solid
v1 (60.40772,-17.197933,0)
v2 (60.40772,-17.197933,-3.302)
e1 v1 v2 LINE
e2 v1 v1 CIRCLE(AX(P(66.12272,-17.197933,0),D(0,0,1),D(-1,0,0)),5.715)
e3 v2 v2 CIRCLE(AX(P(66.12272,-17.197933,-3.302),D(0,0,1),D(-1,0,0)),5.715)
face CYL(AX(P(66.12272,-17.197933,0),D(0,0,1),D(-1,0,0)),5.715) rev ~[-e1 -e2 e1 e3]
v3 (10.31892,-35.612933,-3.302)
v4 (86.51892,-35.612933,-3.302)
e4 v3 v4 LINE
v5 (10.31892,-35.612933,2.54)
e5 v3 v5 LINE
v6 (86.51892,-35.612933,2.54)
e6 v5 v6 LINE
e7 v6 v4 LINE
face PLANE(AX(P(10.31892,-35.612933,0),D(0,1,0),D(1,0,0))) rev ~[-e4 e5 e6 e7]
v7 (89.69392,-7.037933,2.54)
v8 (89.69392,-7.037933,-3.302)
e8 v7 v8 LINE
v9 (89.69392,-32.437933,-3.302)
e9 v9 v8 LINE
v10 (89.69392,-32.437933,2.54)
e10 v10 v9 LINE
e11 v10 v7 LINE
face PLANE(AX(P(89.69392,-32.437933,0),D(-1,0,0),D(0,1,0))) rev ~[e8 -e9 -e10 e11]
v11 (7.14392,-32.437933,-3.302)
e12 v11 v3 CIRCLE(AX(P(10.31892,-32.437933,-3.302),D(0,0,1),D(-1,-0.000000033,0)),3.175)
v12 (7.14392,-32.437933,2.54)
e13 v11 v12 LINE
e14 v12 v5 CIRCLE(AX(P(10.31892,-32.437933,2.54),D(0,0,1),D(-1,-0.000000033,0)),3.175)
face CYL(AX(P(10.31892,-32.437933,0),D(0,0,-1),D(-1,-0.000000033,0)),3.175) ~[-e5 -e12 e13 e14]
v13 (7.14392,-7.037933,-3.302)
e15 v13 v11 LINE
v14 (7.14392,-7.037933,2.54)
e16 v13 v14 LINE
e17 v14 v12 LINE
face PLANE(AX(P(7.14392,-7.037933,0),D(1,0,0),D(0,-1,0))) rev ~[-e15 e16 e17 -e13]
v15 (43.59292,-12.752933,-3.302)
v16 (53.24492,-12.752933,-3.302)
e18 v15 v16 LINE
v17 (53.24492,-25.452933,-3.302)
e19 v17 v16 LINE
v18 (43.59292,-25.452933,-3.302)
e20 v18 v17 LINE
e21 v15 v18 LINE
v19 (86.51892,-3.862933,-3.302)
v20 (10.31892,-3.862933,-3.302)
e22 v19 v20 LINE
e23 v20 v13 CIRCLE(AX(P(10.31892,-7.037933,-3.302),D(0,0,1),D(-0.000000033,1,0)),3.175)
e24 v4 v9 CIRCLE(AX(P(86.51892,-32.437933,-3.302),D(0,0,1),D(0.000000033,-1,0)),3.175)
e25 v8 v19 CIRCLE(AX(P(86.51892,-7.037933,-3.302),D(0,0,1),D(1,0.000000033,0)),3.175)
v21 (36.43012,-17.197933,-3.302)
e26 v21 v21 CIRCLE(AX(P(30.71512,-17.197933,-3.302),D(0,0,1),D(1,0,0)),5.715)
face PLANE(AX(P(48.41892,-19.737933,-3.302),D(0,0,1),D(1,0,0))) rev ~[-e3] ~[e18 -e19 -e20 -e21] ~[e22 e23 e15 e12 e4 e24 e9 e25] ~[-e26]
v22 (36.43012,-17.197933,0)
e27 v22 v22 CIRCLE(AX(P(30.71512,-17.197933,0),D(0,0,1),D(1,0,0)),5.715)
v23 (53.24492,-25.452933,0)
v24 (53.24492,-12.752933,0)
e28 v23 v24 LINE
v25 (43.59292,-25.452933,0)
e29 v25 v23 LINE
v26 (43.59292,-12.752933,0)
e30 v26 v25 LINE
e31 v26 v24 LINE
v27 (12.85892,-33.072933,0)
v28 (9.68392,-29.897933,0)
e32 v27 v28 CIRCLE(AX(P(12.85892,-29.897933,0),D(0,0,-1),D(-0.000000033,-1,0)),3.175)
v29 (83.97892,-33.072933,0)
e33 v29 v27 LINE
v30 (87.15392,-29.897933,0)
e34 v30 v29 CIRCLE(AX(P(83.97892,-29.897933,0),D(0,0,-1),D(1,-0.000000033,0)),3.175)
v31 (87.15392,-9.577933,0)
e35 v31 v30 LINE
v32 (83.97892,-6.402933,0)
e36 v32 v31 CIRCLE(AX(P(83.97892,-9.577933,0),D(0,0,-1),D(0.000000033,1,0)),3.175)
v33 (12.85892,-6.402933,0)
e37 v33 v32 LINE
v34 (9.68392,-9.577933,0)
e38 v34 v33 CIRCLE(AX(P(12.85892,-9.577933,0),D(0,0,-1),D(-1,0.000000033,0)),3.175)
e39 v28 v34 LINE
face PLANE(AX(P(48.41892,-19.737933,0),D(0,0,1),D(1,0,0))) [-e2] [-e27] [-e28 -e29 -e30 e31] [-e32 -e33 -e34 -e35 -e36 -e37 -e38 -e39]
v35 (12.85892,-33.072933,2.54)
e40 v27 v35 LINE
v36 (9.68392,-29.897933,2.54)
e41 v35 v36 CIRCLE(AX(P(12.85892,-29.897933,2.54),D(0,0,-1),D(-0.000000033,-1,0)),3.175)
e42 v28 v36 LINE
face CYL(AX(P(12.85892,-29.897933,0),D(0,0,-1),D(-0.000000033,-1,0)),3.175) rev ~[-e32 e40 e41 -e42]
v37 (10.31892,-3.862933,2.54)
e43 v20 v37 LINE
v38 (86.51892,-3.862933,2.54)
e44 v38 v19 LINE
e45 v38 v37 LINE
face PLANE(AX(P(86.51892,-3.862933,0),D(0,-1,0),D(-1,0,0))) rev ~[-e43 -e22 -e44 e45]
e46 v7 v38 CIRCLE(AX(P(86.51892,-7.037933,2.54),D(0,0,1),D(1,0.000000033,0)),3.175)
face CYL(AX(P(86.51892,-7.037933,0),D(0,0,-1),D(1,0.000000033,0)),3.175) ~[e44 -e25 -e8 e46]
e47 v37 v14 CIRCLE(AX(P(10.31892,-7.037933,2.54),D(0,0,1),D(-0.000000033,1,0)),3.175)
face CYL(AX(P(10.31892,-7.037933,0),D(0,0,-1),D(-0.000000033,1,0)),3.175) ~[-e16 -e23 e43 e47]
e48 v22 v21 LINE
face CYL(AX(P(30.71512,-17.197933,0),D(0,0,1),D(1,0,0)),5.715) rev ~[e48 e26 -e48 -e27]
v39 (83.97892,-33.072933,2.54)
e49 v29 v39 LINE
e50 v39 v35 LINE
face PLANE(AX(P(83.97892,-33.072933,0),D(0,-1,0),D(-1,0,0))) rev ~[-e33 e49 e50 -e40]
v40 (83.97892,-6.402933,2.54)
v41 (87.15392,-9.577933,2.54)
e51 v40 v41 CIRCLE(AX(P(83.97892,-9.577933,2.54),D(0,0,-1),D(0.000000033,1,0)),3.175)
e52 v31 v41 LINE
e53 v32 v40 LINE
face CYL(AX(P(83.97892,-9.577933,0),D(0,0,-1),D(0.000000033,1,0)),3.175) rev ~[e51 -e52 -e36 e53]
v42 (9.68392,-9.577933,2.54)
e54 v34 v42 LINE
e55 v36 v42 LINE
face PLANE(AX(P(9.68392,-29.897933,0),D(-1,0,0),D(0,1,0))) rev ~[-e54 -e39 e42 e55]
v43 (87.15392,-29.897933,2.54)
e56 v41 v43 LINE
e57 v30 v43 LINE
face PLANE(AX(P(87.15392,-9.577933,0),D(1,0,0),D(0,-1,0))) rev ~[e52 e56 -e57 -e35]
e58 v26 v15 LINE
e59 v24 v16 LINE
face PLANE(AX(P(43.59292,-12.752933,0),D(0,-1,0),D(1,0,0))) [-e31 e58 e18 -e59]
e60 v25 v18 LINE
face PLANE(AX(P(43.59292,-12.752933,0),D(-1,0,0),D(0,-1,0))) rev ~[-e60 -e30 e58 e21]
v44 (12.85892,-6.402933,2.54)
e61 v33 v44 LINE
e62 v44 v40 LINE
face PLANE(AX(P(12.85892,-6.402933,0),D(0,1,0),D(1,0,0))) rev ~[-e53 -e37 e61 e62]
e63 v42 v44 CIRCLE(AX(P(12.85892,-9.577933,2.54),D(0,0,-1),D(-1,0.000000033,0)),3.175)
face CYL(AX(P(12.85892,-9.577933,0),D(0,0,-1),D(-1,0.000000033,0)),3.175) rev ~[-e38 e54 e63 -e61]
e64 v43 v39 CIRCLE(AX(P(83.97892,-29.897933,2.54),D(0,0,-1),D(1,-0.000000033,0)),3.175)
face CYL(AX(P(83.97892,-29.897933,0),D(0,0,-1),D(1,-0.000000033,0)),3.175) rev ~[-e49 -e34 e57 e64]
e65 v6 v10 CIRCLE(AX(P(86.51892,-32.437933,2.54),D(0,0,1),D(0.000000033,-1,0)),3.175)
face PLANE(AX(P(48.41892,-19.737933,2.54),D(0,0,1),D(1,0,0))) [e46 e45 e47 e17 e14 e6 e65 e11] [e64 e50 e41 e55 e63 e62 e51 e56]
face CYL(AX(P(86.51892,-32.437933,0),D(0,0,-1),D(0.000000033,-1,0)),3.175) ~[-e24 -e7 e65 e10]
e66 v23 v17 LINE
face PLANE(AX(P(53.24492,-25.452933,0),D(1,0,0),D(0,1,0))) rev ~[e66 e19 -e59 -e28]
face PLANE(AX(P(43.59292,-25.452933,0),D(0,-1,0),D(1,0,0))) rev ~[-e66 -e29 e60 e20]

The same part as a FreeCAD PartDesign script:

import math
import FreeCAD as App
import Part
import Sketcher
from FreeCAD import Vector
Q = App.Units.Quantity


def add_polygon(sketch, points):
    """Adds a closed chain of lines whose ends are joined by coincident constraints."""
    first, n = sketch.GeometryCount, len(points)
    for a, b in zip(points, points[1:] + points[:1]):
        sketch.addGeometry(Part.LineSegment(App.Vector(*a, 0), App.Vector(*b, 0)), False)
    for i in range(n):
        sketch.addConstraint(Sketcher.Constraint("Coincident", first + i, 2, first + (i + 1) % n, 1))

doc = App.newDocument("Part")
body = doc.addObject("PartDesign::Body", "Body")

sketch1 = body.newObject("Sketcher::SketchObject", "Sketch")
sketch1.AttachmentSupport = (doc.getObject("XY_Plane"), [""])
sketch1.MapMode = "FlatFace"
sketch1.addGeometry(Part.LineSegment(Vector(86.51892, -3.862933, 0), Vector(10.31892, -3.862933, 0)), False)
sketch1.addGeometry(Part.ArcOfCircle(Part.Circle(Vector(10.31892, -7.037933, 0), Vector(0, 0, 1), 3.175), math.radians(90.000002), math.radians(179.999998)), False)
sketch1.addGeometry(Part.LineSegment(Vector(7.14392, -7.037933, 0), Vector(7.14392, -32.437933, 0)), False)
sketch1.addGeometry(Part.ArcOfCircle(Part.Circle(Vector(10.31892, -32.437933, 0), Vector(0, 0, 1), 3.175), math.radians(-179.999998), math.radians(-90.000002)), False)
sketch1.addGeometry(Part.LineSegment(Vector(10.31892, -35.612933, 0), Vector(86.51892, -35.612933, 0)), False)
sketch1.addGeometry(Part.ArcOfCircle(Part.Circle(Vector(86.51892, -32.437933, 0), Vector(0, 0, 1), 3.175), math.radians(-89.999998), math.radians(-0.000002)), False)
sketch1.addGeometry(Part.LineSegment(Vector(89.69392, -32.437933, 0), Vector(89.69392, -7.037933, 0)), False)
sketch1.addGeometry(Part.ArcOfCircle(Part.Circle(Vector(86.51892, -7.037933, 0), Vector(0, 0, 1), 3.175), math.radians(0.000002), math.radians(89.999998)), False)
sketch1.addConstraint(Sketcher.Constraint("Tangent", 0, 2, 1, 1))
sketch1.addConstraint(Sketcher.Constraint("Tangent", 1, 2, 2, 1))
sketch1.addConstraint(Sketcher.Constraint("Tangent", 2, 2, 3, 1))
sketch1.addConstraint(Sketcher.Constraint("Tangent", 3, 2, 4, 1))
sketch1.addConstraint(Sketcher.Constraint("Tangent", 4, 2, 5, 1))
sketch1.addConstraint(Sketcher.Constraint("Tangent", 5, 2, 6, 1))
sketch1.addConstraint(Sketcher.Constraint("Tangent", 6, 2, 7, 1))
sketch1.addConstraint(Sketcher.Constraint("Tangent", 7, 2, 0, 1))
sketch1.addConstraint(Sketcher.Constraint("Horizontal", 0))
sketch1.addConstraint(Sketcher.Constraint("Vertical", 2))
sketch1.addConstraint(Sketcher.Constraint("Horizontal", 4))
sketch1.addConstraint(Sketcher.Constraint("Vertical", 6))
sketch1.addConstraint(Sketcher.Constraint("Equal", 1, 3))
sketch1.addConstraint(Sketcher.Constraint("Equal", 3, 5))
sketch1.addConstraint(Sketcher.Constraint("Equal", 5, 7))
sketch1.addConstraint(Sketcher.Constraint("DistanceX", 0, 2, 0, 1, Q("3 in")))
sketch1.addConstraint(Sketcher.Constraint("DistanceY", 2, 2, 2, 1, Q("1 in")))
sketch1.addConstraint(Sketcher.Constraint("Radius", 1, Q("0.125 in")))
sketch1.addConstraint(Sketcher.Constraint("DistanceX", -1, 1, 1, 3, 10.31892))
sketch1.addConstraint(Sketcher.Constraint("DistanceY", 1, 3, -1, 1, 7.037933))
pad1 = body.newObject("PartDesign::Pad", "Pad")
pad1.Profile = sketch1
pad1.Length = Q("0.13 in")
pad1.Reversed = True

sketch2 = body.newObject("Sketcher::SketchObject", "Sketch001")
sketch2.AttachmentSupport = (doc.getObject("XY_Plane"), [""])
sketch2.MapMode = "FlatFace"
sketch2.addGeometry(Part.LineSegment(Vector(86.51892, -3.862933, 0), Vector(10.31892, -3.862933, 0)), False)
sketch2.addGeometry(Part.ArcOfCircle(Part.Circle(Vector(10.31892, -7.037933, 0), Vector(0, 0, 1), 3.175), math.radians(90.000002), math.radians(179.999998)), False)
sketch2.addGeometry(Part.LineSegment(Vector(7.14392, -7.037933, 0), Vector(7.14392, -32.437933, 0)), False)
sketch2.addGeometry(Part.ArcOfCircle(Part.Circle(Vector(10.31892, -32.437933, 0), Vector(0, 0, 1), 3.175), math.radians(-179.999998), math.radians(-90.000002)), False)
sketch2.addGeometry(Part.LineSegment(Vector(10.31892, -35.612933, 0), Vector(86.51892, -35.612933, 0)), False)
sketch2.addGeometry(Part.ArcOfCircle(Part.Circle(Vector(86.51892, -32.437933, 0), Vector(0, 0, 1), 3.175), math.radians(-89.999998), math.radians(-0.000002)), False)
sketch2.addGeometry(Part.LineSegment(Vector(89.69392, -32.437933, 0), Vector(89.69392, -7.037933, 0)), False)
sketch2.addGeometry(Part.ArcOfCircle(Part.Circle(Vector(86.51892, -7.037933, 0), Vector(0, 0, 1), 3.175), math.radians(0.000002), math.radians(89.999998)), False)
sketch2.addGeometry(Part.ArcOfCircle(Part.Circle(Vector(83.97892, -29.897933, 0), Vector(0, 0, 1), 3.175), math.radians(-89.999998), math.radians(-0.000002)), False)
sketch2.addGeometry(Part.LineSegment(Vector(83.97892, -33.072933, 0), Vector(12.85892, -33.072933, 0)), False)
sketch2.addGeometry(Part.ArcOfCircle(Part.Circle(Vector(12.85892, -29.897933, 0), Vector(0, 0, 1), 3.175), math.radians(-179.999998), math.radians(-90.000002)), False)
sketch2.addGeometry(Part.LineSegment(Vector(9.68392, -29.897933, 0), Vector(9.68392, -9.577933, 0)), False)
sketch2.addGeometry(Part.ArcOfCircle(Part.Circle(Vector(12.85892, -9.577933, 0), Vector(0, 0, 1), 3.175), math.radians(90.000002), math.radians(179.999998)), False)
sketch2.addGeometry(Part.LineSegment(Vector(12.85892, -6.402933, 0), Vector(83.97892, -6.402933, 0)), False)
sketch2.addGeometry(Part.ArcOfCircle(Part.Circle(Vector(83.97892, -9.577933, 0), Vector(0, 0, 1), 3.175), math.radians(0.000002), math.radians(89.999998)), False)
sketch2.addGeometry(Part.LineSegment(Vector(87.15392, -9.577933, 0), Vector(87.15392, -29.897933, 0)), False)
sketch2.addConstraint(Sketcher.Constraint("Tangent", 0, 2, 1, 1))
sketch2.addConstraint(Sketcher.Constraint("Tangent", 1, 2, 2, 1))
sketch2.addConstraint(Sketcher.Constraint("Tangent", 2, 2, 3, 1))
sketch2.addConstraint(Sketcher.Constraint("Tangent", 3, 2, 4, 1))
sketch2.addConstraint(Sketcher.Constraint("Tangent", 4, 2, 5, 1))
sketch2.addConstraint(Sketcher.Constraint("Tangent", 5, 2, 6, 1))
sketch2.addConstraint(Sketcher.Constraint("Tangent", 6, 2, 7, 1))
sketch2.addConstraint(Sketcher.Constraint("Tangent", 7, 2, 0, 1))
sketch2.addConstraint(Sketcher.Constraint("Tangent", 8, 1, 9, 1))
sketch2.addConstraint(Sketcher.Constraint("Tangent", 9, 2, 10, 2))
sketch2.addConstraint(Sketcher.Constraint("Tangent", 10, 1, 11, 1))
sketch2.addConstraint(Sketcher.Constraint("Tangent", 11, 2, 12, 2))
sketch2.addConstraint(Sketcher.Constraint("Tangent", 12, 1, 13, 1))
sketch2.addConstraint(Sketcher.Constraint("Tangent", 13, 2, 14, 2))
sketch2.addConstraint(Sketcher.Constraint("Tangent", 14, 1, 15, 1))
sketch2.addConstraint(Sketcher.Constraint("Tangent", 15, 2, 8, 2))
sketch2.addConstraint(Sketcher.Constraint("Horizontal", 0))
sketch2.addConstraint(Sketcher.Constraint("Vertical", 2))
sketch2.addConstraint(Sketcher.Constraint("Horizontal", 4))
sketch2.addConstraint(Sketcher.Constraint("Vertical", 6))
sketch2.addConstraint(Sketcher.Constraint("Horizontal", 9))
sketch2.addConstraint(Sketcher.Constraint("Vertical", 11))
sketch2.addConstraint(Sketcher.Constraint("Horizontal", 13))
sketch2.addConstraint(Sketcher.Constraint("Vertical", 15))
sketch2.addConstraint(Sketcher.Constraint("Equal", 1, 3))
sketch2.addConstraint(Sketcher.Constraint("Equal", 3, 5))
sketch2.addConstraint(Sketcher.Constraint("Equal", 5, 7))
sketch2.addConstraint(Sketcher.Constraint("Equal", 7, 8))
sketch2.addConstraint(Sketcher.Constraint("Equal", 8, 10))
sketch2.addConstraint(Sketcher.Constraint("Equal", 10, 12))
sketch2.addConstraint(Sketcher.Constraint("Equal", 12, 14))
sketch2.addConstraint(Sketcher.Constraint("DistanceX", 0, 2, 0, 1, Q("3 in")))
sketch2.addConstraint(Sketcher.Constraint("DistanceY", 2, 2, 2, 1, Q("1 in")))
sketch2.addConstraint(Sketcher.Constraint("DistanceX", 9, 2, 9, 1, Q("2.8 in")))
sketch2.addConstraint(Sketcher.Constraint("DistanceY", 11, 1, 11, 2, Q("0.8 in")))
sketch2.addConstraint(Sketcher.Constraint("Radius", 1, Q("0.125 in")))
sketch2.addConstraint(Sketcher.Constraint("DistanceX", 8, 3, 5, 3, Q("0.1 in")))
sketch2.addConstraint(Sketcher.Constraint("DistanceY", 5, 3, 8, 3, Q("0.1 in")))
sketch2.addConstraint(Sketcher.Constraint("DistanceX", -1, 1, 1, 3, 10.31892))
sketch2.addConstraint(Sketcher.Constraint("DistanceY", 1, 3, -1, 1, 7.037933))
pad2 = body.newObject("PartDesign::Pad", "Pad001")
pad2.Profile = sketch2
pad2.Length = Q("0.1 in")

sketch3 = body.newObject("Sketcher::SketchObject", "Sketch002")
sketch3.AttachmentSupport = (doc.getObject("XY_Plane"), [""])
sketch3.MapMode = "FlatFace"
sketch3.addGeometry(Part.Circle(Vector(30.71512, -17.197933, 0), Vector(0, 0, 1), 5.715), False)
sketch3.addGeometry(Part.Circle(Vector(66.12272, -17.197933, 0), Vector(0, 0, 1), 5.715), False)
add_polygon(sketch3, [(43.59292, -12.752933), (43.59292, -25.452933), (53.24492, -25.452933), (53.24492, -12.752933)])
sketch3.addConstraint(Sketcher.Constraint("Vertical", 2))
sketch3.addConstraint(Sketcher.Constraint("Horizontal", 3))
sketch3.addConstraint(Sketcher.Constraint("Vertical", 4))
sketch3.addConstraint(Sketcher.Constraint("Horizontal", 5))
sketch3.addConstraint(Sketcher.Constraint("Equal", 0, 1))
sketch3.addConstraint(Sketcher.Constraint("Horizontal", 0, 3, 1, 3))
sketch3.addConstraint(Sketcher.Constraint("Diameter", 0, Q("0.45 in")))
sketch3.addConstraint(Sketcher.Constraint("DistanceY", 2, 2, 2, 1, Q("0.5 in")))
sketch3.addConstraint(Sketcher.Constraint("DistanceX", 3, 1, 3, 2, Q("0.38 in")))
sketch3.addConstraint(Sketcher.Constraint("DistanceX", 0, 3, 1, 3, Q("1.394 in")))
sketch3.addConstraint(Sketcher.Constraint("DistanceX", 0, 3, 2, 2, Q("0.507 in")))
sketch3.addConstraint(Sketcher.Constraint("DistanceY", 2, 2, 0, 3, Q("0.325 in")))
sketch3.addConstraint(Sketcher.Constraint("DistanceX", -1, 1, 0, 3, 30.71512))
sketch3.addConstraint(Sketcher.Constraint("DistanceY", 0, 3, -1, 1, 17.197933))
pocket1 = body.newObject("PartDesign::Pocket", "Pocket")
pocket1.Profile = sketch3
pocket1.Type = "ThroughAll"

doc.recompute()
